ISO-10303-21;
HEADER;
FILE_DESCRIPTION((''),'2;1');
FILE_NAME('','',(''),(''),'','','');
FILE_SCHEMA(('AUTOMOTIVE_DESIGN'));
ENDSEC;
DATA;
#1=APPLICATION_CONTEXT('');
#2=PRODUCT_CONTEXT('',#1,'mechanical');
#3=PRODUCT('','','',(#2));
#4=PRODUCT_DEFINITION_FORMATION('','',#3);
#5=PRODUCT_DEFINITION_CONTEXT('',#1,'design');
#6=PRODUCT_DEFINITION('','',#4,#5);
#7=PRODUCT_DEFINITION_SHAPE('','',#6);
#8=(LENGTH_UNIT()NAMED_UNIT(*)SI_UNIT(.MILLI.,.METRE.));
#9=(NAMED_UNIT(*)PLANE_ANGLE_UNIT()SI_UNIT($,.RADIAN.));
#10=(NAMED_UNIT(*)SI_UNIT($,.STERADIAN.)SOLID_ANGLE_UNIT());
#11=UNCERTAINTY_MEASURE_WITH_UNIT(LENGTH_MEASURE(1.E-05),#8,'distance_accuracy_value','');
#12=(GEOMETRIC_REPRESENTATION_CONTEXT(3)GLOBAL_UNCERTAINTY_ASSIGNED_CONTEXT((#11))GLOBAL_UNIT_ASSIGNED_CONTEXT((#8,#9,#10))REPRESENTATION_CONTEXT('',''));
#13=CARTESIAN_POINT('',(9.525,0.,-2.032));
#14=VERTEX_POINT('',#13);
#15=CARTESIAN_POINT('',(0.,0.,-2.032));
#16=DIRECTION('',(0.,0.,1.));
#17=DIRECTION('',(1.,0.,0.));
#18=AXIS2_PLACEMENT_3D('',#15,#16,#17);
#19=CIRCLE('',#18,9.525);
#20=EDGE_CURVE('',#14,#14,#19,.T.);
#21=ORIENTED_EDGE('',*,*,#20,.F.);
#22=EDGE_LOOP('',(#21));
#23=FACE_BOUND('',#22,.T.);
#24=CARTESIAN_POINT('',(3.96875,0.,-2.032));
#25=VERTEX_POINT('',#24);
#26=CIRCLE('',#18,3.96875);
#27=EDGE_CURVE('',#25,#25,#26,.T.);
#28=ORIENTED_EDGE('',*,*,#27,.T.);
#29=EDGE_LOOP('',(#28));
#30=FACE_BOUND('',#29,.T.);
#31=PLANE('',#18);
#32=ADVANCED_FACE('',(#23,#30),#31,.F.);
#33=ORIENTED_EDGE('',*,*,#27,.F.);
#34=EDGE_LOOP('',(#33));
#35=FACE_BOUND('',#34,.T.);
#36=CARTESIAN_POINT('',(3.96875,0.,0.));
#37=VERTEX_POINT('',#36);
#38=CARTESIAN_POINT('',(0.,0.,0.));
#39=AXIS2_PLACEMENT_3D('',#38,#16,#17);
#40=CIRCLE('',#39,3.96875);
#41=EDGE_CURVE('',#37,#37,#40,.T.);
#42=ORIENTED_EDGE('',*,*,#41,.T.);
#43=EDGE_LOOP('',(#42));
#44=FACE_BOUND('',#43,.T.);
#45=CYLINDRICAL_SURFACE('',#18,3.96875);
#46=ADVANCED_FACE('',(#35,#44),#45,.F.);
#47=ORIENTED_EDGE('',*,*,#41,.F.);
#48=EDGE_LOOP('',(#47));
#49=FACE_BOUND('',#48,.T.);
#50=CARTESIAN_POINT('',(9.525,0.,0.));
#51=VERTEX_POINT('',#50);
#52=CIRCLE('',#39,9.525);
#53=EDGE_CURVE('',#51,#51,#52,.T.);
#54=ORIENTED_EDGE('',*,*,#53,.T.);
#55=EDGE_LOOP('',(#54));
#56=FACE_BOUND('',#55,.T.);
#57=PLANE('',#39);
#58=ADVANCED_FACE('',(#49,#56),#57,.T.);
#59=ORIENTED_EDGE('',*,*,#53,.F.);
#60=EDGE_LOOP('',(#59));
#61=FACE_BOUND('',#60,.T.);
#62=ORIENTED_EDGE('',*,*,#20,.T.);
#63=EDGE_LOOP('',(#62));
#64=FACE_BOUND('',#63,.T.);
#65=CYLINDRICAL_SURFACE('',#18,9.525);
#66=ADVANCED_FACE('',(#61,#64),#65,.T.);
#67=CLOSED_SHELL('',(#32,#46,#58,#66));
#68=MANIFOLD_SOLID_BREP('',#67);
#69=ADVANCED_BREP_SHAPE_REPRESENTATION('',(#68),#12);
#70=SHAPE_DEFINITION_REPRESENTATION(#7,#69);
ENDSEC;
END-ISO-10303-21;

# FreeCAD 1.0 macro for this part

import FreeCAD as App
import Part
import Sketcher

V = App.Vector
Q = App.Units.Quantity

doc = App.newDocument("Part")
body = doc.addObject("PartDesign::Body", "Body")

sketch1 = body.newObject("Sketcher::SketchObject", "Sketch")
sketch1.AttachmentSupport = (doc.getObject("XY_Plane"), [""])
sketch1.MapMode = "FlatFace"
sketch1.addGeometry([
    Part.Circle(V(0, 0, 0), V(0, 0, 1), 9.5),
    Part.Circle(V(0, 0, 0), V(0, 0, 1), 4),
], False)
sketch1.addConstraint([
    Sketcher.Constraint("Coincident", 0, 3, -1, 1),
    Sketcher.Constraint("Coincident", 1, 3, -1, 1),
    Sketcher.Constraint("Diameter", 0, Q("0.75 in")),
    Sketcher.Constraint("Diameter", 1, Q("0.3125 in")),
])
pad1 = body.newObject("PartDesign::Pad", "Pad")
pad1.Profile = sketch1
pad1.Length = Q("0.08 in")
pad1.Reversed = True

doc.recompute()
